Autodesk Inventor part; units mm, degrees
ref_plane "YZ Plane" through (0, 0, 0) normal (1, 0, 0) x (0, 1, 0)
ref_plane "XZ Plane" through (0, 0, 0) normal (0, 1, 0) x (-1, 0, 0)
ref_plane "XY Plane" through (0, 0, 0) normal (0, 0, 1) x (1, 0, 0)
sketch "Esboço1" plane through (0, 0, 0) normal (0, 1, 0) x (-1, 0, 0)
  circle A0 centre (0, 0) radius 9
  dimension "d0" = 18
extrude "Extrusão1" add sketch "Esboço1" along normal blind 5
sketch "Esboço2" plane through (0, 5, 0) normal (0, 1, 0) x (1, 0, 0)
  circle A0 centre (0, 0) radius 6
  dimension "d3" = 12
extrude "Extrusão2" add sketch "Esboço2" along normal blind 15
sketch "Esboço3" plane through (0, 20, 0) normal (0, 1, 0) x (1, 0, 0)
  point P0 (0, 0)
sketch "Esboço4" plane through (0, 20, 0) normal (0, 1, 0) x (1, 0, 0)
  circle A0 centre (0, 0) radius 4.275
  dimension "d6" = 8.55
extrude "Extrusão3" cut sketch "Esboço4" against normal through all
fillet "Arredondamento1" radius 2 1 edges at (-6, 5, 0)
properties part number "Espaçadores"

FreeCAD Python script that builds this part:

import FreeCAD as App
import Part
import Sketcher
from FreeCAD import Vector
Q = App.Units.Quantity


def edges_at(feature, points):
    """Names of the edges that pass closest to the given points."""
    edges = feature.Shape.Edges
    near = lambda p: min(range(len(edges)), key=lambda i: edges[i].distToShape(Part.Vertex(*p))[0])
    return sorted({f"Edge{near(p) + 1}" for p in points})

doc = App.newDocument("Part")
body = doc.addObject("PartDesign::Body", "Body")

# Sketch on XZ plane
sketch1 = body.newObject("Sketcher::SketchObject", "Sketch")
sketch1.AttachmentSupport = (doc.getObject("XZ_Plane"), [""])
sketch1.MapMode = "FlatFace"
sketch1.addGeometry(Part.Circle(Vector(0, 0, 0), Vector(0, 0, 1), 9), False)
sketch1.addConstraint([
    Sketcher.Constraint("Coincident", 0, 3, -1, 1),
    Sketcher.Constraint("Diameter", 0, Q("18 mm")),
])
pad1 = body.newObject("PartDesign::Pad", "Pad")
pad1.Profile = sketch1
pad1.Length = 5
pad1.Reversed = True

# Sketch on XZ plane
sketch2 = body.newObject("Sketcher::SketchObject", "Sketch001")
sketch2.AttachmentSupport = (doc.getObject("XZ_Plane"), [""])
sketch2.MapMode = "FlatFace"
sketch2.AttachmentOffset = App.Placement(Vector(0, 0, -5), App.Rotation())
sketch2.addGeometry(Part.Circle(Vector(0, 0, 0), Vector(0, 0, 1), 6), False)
sketch2.addConstraint([
    Sketcher.Constraint("Coincident", 0, 3, -1, 1),
    Sketcher.Constraint("Diameter", 0, Q("12 mm")),
])
pad2 = body.newObject("PartDesign::Pad", "Pad001")
pad2.Profile = sketch2
pad2.Length = 15
pad2.Reversed = True

# Sketch on XZ plane
sketch3 = body.newObject("Sketcher::SketchObject", "Sketch002")
sketch3.AttachmentSupport = (doc.getObject("XZ_Plane"), [""])
sketch3.MapMode = "FlatFace"
sketch3.AttachmentOffset = App.Placement(Vector(0, 0, -20), App.Rotation())
sketch3.addGeometry(Part.Circle(Vector(0, 0, 0), Vector(0, 0, 1), 4.275), False)
sketch3.addConstraint([
    Sketcher.Constraint("Coincident", 0, 3, -1, 1),
    Sketcher.Constraint("Diameter", 0, Q("8.55 mm")),
])
pocket1 = body.newObject("PartDesign::Pocket", "Pocket")
pocket1.Profile = sketch3
pocket1.Type = "ThroughAll"
pocket1.Reversed = True
doc.recompute()

fillet = body.newObject("PartDesign::Fillet", "Fillet")
fillet.Base = (pocket1, edges_at(pocket1, [(-6, 5, 0)]))
fillet.Radius = 2

doc.recompute()
